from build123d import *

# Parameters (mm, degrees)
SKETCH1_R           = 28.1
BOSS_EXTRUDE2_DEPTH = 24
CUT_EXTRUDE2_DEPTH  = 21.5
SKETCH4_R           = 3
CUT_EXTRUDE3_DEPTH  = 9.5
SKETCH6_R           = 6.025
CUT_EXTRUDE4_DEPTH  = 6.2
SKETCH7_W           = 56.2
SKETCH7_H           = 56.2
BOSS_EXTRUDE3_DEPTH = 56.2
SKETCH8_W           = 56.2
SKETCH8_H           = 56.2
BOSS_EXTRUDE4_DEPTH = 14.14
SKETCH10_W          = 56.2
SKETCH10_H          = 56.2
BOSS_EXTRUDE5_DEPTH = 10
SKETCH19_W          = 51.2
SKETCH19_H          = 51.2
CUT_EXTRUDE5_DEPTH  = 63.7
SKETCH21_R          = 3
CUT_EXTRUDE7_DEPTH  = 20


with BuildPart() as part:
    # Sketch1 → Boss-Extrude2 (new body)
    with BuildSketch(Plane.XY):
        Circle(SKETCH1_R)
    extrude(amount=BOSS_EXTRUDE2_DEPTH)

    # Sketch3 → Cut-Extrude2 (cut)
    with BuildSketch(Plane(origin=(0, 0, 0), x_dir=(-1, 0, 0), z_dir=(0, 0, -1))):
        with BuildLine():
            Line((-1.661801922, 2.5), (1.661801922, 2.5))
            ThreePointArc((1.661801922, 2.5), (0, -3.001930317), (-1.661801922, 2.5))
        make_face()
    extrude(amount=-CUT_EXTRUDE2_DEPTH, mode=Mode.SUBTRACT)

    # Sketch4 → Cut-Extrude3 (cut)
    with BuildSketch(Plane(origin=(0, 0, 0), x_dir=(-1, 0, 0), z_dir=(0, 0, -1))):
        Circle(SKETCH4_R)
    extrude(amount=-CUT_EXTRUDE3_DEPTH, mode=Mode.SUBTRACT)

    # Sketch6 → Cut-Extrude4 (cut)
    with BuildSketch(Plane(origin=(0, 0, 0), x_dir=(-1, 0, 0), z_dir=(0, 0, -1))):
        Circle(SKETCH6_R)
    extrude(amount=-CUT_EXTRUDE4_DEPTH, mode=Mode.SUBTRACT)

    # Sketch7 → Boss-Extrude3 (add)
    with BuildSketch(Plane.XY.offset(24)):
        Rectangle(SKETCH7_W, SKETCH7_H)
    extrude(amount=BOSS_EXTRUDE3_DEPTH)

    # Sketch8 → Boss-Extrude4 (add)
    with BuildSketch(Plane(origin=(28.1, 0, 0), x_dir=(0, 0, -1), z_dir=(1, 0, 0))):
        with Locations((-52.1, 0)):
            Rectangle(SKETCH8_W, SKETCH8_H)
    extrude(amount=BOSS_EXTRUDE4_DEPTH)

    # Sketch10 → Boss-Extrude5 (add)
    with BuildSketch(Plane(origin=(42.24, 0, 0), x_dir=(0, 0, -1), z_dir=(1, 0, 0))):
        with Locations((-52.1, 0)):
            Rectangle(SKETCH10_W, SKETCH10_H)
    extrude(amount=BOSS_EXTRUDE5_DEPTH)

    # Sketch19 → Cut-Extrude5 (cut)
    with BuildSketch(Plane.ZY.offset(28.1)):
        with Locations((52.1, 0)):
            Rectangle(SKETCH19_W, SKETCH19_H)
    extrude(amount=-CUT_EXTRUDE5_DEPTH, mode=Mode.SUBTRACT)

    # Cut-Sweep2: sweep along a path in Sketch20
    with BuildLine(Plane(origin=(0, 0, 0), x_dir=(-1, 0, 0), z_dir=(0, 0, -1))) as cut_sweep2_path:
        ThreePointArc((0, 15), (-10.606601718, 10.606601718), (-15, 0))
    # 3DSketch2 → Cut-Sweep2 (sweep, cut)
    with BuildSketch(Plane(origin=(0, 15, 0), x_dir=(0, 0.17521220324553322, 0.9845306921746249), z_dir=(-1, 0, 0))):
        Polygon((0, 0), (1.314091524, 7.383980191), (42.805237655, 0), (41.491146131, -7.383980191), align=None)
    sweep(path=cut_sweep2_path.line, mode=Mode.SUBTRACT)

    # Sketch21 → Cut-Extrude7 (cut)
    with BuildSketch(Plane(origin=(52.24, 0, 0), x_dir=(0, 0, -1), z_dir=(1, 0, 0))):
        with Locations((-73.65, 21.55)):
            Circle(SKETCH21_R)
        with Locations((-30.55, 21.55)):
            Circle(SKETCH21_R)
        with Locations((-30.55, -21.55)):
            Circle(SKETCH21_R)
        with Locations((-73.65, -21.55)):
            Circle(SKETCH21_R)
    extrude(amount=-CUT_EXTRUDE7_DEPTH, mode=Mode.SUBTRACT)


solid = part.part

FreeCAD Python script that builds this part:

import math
import FreeCAD as App
import Part
import Sketcher
from FreeCAD import Vector

doc = App.newDocument("Part")
body = doc.addObject("PartDesign::Body", "Body")

sketch1 = doc.addObject("Sketcher::SketchObject", "Sketch")
body.addObject(sketch1)
sketch1.AttachmentSupport = (doc.XY_Plane, [""])
sketch1.MapMode = "FlatFace"
sketch1.addGeometry(Part.Circle(Vector(0, 0, 0), Vector(0, 0, 1), 28.1), False)
sketch1.addConstraint(Sketcher.Constraint("Coincident", 0, 3, -1, 1))
sketch1.addConstraint(Sketcher.Constraint("Diameter", 0, 56.2))
pad1 = doc.addObject("PartDesign::Pad", "Pad")
body.addObject(pad1)
pad1.Profile = sketch1
pad1.Length = 24

sketch2 = doc.addObject("Sketcher::SketchObject", "Sketch001")
body.addObject(sketch2)
sketch2.AttachmentSupport = (doc.XY_Plane, [""])
sketch2.MapMode = "FlatFace"
sketch2.addGeometry(Part.LineSegment(Vector(-1.661802, 2.5, 0), Vector(1.661802, 2.5, 0)), False)
sketch2.addGeometry(Part.ArcOfCircle(Part.Circle(Vector(0, 0, 0), Vector(0, 0, 1), 3.00193), math.radians(123.612812), math.radians(416.387188)), False)
sketch2.addConstraint(Sketcher.Constraint("Coincident", 0, 1, 1, 1))
sketch2.addConstraint(Sketcher.Constraint("Coincident", 1, 2, 0, 2))
sketch2.addConstraint(Sketcher.Constraint("Horizontal", 0))
sketch2.addConstraint(Sketcher.Constraint("Coincident", 1, 3, -1, 1))
sketch2.addConstraint(Sketcher.Constraint("DistanceY", -1, 1, 0, 1, 2.5))
sketch2.addConstraint(Sketcher.Constraint("Radius", 1, 3.00193))
pocket1 = doc.addObject("PartDesign::Pocket", "Pocket")
body.addObject(pocket1)
pocket1.Profile = sketch2
pocket1.Length = 21.5
pocket1.Reversed = True

sketch3 = doc.addObject("Sketcher::SketchObject", "Sketch002")
body.addObject(sketch3)
sketch3.AttachmentSupport = (doc.XY_Plane, [""])
sketch3.MapMode = "FlatFace"
sketch3.addGeometry(Part.Circle(Vector(0, 0, 0), Vector(0, 0, 1), 3), False)
sketch3.addConstraint(Sketcher.Constraint("Coincident", 0, 3, -1, 1))
sketch3.addConstraint(Sketcher.Constraint("Diameter", 0, 6.0))
pocket2 = doc.addObject("PartDesign::Pocket", "Pocket001")
body.addObject(pocket2)
pocket2.Profile = sketch3
pocket2.Length = 9.5
pocket2.Reversed = True

sketch4 = doc.addObject("Sketcher::SketchObject", "Sketch003")
body.addObject(sketch4)
sketch4.AttachmentSupport = (doc.XY_Plane, [""])
sketch4.MapMode = "FlatFace"
sketch4.addGeometry(Part.Circle(Vector(0, 0, 0), Vector(0, 0, 1), 6.025), False)
sketch4.addConstraint(Sketcher.Constraint("Coincident", 0, 3, -1, 1))
sketch4.addConstraint(Sketcher.Constraint("Diameter", 0, 12.05))
pocket3 = doc.addObject("PartDesign::Pocket", "Pocket002")
body.addObject(pocket3)
pocket3.Profile = sketch4
pocket3.Length = 6.2
pocket3.Reversed = True

sketch5 = doc.addObject("Sketcher::SketchObject", "Sketch004")
body.addObject(sketch5)
sketch5.AttachmentSupport = (doc.XY_Plane, [""])
sketch5.MapMode = "FlatFace"
sketch5.AttachmentOffset = App.Placement(Vector(0, 0, 24), App.Rotation())
sketch5.addGeometry(Part.LineSegment(Vector(-28.1, 28.1, 0), Vector(-28.1, -28.1, 0)), False)
sketch5.addGeometry(Part.LineSegment(Vector(-28.1, -28.1, 0), Vector(28.1, -28.1, 0)), False)
sketch5.addGeometry(Part.LineSegment(Vector(28.1, -28.1, 0), Vector(28.1, 28.1, 0)), False)
sketch5.addGeometry(Part.LineSegment(Vector(28.1, 28.1, 0), Vector(-28.1, 28.1, 0)), False)
sketch5.addConstraint(Sketcher.Constraint("Coincident", 0, 2, 1, 1))
sketch5.addConstraint(Sketcher.Constraint("Coincident", 1, 2, 2, 1))
sketch5.addConstraint(Sketcher.Constraint("Coincident", 2, 2, 3, 1))
sketch5.addConstraint(Sketcher.Constraint("Coincident", 3, 2, 0, 1))
sketch5.addConstraint(Sketcher.Constraint("Vertical", 0))
sketch5.addConstraint(Sketcher.Constraint("Horizontal", 1))
sketch5.addConstraint(Sketcher.Constraint("Vertical", 2))
sketch5.addConstraint(Sketcher.Constraint("Horizontal", 3))
sketch5.addConstraint(Sketcher.Constraint("Symmetric", 0, 2, 2, 2, -1, 1))
sketch5.addConstraint(Sketcher.Constraint("Equal", 3, 0))
sketch5.addConstraint(Sketcher.Constraint("DistanceX", 1, 1, 1, 2, 56.2))
pad2 = doc.addObject("PartDesign::Pad", "Pad001")
body.addObject(pad2)
pad2.Profile = sketch5
pad2.Length = 56.2

sketch6 = doc.addObject("Sketcher::SketchObject", "Sketch005")
body.addObject(sketch6)
sketch6.AttachmentSupport = (doc.YZ_Plane, [""])
sketch6.MapMode = "FlatFace"
sketch6.AttachmentOffset = App.Placement(Vector(0, 0, 28.1), App.Rotation())
sketch6.addGeometry(Part.LineSegment(Vector(28.1, 80.2, 0), Vector(-28.1, 80.2, 0)), False)
sketch6.addGeometry(Part.LineSegment(Vector(-28.1, 80.2, 0), Vector(-28.1, 24, 0)), False)
sketch6.addGeometry(Part.LineSegment(Vector(-28.1, 24, 0), Vector(28.1, 24, 0)), False)
sketch6.addGeometry(Part.LineSegment(Vector(28.1, 24, 0), Vector(28.1, 80.2, 0)), False)
sketch6.addConstraint(Sketcher.Constraint("Coincident", 0, 2, 1, 1))
sketch6.addConstraint(Sketcher.Constraint("Coincident", 1, 2, 2, 1))
sketch6.addConstraint(Sketcher.Constraint("Coincident", 2, 2, 3, 1))
sketch6.addConstraint(Sketcher.Constraint("Coincident", 3, 2, 0, 1))
sketch6.addConstraint(Sketcher.Constraint("Horizontal", 0))
sketch6.addConstraint(Sketcher.Constraint("Vertical", 1))
sketch6.addConstraint(Sketcher.Constraint("Horizontal", 2))
sketch6.addConstraint(Sketcher.Constraint("Vertical", 3))
sketch6.addConstraint(Sketcher.Constraint("Equal", 2, 1))
sketch6.addConstraint(Sketcher.Constraint("DistanceX", 0, 2, 0, 1, 56.2))
sketch6.addConstraint(Sketcher.Constraint("DistanceY", -1, 1, 1, 2, 24.0))
sketch6.addConstraint(Sketcher.Constraint("DistanceX", 0, 2, -1, 1, 28.1))
pad3 = doc.addObject("PartDesign::Pad", "Pad002")
body.addObject(pad3)
pad3.Profile = sketch6
pad3.Length = 14.14

sketch7 = doc.addObject("Sketcher::SketchObject", "Sketch006")
body.addObject(sketch7)
sketch7.AttachmentSupport = (doc.YZ_Plane, [""])
sketch7.MapMode = "FlatFace"
sketch7.AttachmentOffset = App.Placement(Vector(0, 0, 42.24), App.Rotation())
sketch7.addGeometry(Part.LineSegment(Vector(28.1, 80.2, 0), Vector(-28.1, 80.2, 0)), False)
sketch7.addGeometry(Part.LineSegment(Vector(-28.1, 80.2, 0), Vector(-28.1, 24, 0)), False)
sketch7.addGeometry(Part.LineSegment(Vector(-28.1, 24, 0), Vector(28.1, 24, 0)), False)
sketch7.addGeometry(Part.LineSegment(Vector(28.1, 24, 0), Vector(28.1, 80.2, 0)), False)
sketch7.addConstraint(Sketcher.Constraint("Coincident", 0, 2, 1, 1))
sketch7.addConstraint(Sketcher.Constraint("Coincident", 1, 2, 2, 1))
sketch7.addConstraint(Sketcher.Constraint("Coincident", 2, 2, 3, 1))
sketch7.addConstraint(Sketcher.Constraint("Coincident", 3, 2, 0, 1))
sketch7.addConstraint(Sketcher.Constraint("Horizontal", 0))
sketch7.addConstraint(Sketcher.Constraint("Vertical", 1))
sketch7.addConstraint(Sketcher.Constraint("Horizontal", 2))
sketch7.addConstraint(Sketcher.Constraint("Vertical", 3))
sketch7.addConstraint(Sketcher.Constraint("Equal", 2, 1))
sketch7.addConstraint(Sketcher.Constraint("DistanceX", 0, 2, 0, 1, 56.2))
sketch7.addConstraint(Sketcher.Constraint("DistanceY", -1, 1, 1, 2, 24.0))
sketch7.addConstraint(Sketcher.Constraint("DistanceX", 0, 2, -1, 1, 28.1))
pad4 = doc.addObject("PartDesign::Pad", "Pad003")
body.addObject(pad4)
pad4.Profile = sketch7
pad4.Length = 10

sketch8 = doc.addObject("Sketcher::SketchObject", "Sketch007")
body.addObject(sketch8)
sketch8.AttachmentSupport = (doc.YZ_Plane, [""])
sketch8.MapMode = "FlatFace"
sketch8.AttachmentOffset = App.Placement(Vector(0, 0, -28.1), App.Rotation())
sketch8.addGeometry(Part.LineSegment(Vector(25.6, 26.5, 0), Vector(-25.6, 26.5, 0)), False)
sketch8.addGeometry(Part.LineSegment(Vector(-25.6, 26.5, 0), Vector(-25.6, 77.7, 0)), False)
sketch8.addGeometry(Part.LineSegment(Vector(-25.6, 77.7, 0), Vector(25.6, 77.7, 0)), False)
sketch8.addGeometry(Part.LineSegment(Vector(25.6, 77.7, 0), Vector(25.6, 26.5, 0)), False)
sketch8.addConstraint(Sketcher.Constraint("Coincident", 0, 2, 1, 1))
sketch8.addConstraint(Sketcher.Constraint("Coincident", 1, 2, 2, 1))
sketch8.addConstraint(Sketcher.Constraint("Coincident", 2, 2, 3, 1))
sketch8.addConstraint(Sketcher.Constraint("Coincident", 3, 2, 0, 1))
sketch8.addConstraint(Sketcher.Constraint("Horizontal", 0))
sketch8.addConstraint(Sketcher.Constraint("Vertical", 1))
sketch8.addConstraint(Sketcher.Constraint("Horizontal", 2))
sketch8.addConstraint(Sketcher.Constraint("Vertical", 3))
sketch8.addConstraint(Sketcher.Constraint("Equal", 2, 1))
sketch8.addConstraint(Sketcher.Constraint("DistanceX", 0, 2, 0, 1, 51.2))
sketch8.addConstraint(Sketcher.Constraint("DistanceX", 0, 2, -1, 1, 25.6))
sketch8.addConstraint(Sketcher.Constraint("DistanceY", -1, 1, 0, 2, 26.5))
pocket4 = doc.addObject("PartDesign::Pocket", "Pocket003")
body.addObject(pocket4)
pocket4.Profile = sketch8
pocket4.Length = 63.7
pocket4.Reversed = True

sketch9 = doc.addObject("Sketcher::SketchObject", "Sketch008")
body.addObject(sketch9)
sketch9.AttachmentSupport = (doc.YZ_Plane, [""])
sketch9.MapMode = "FlatFace"
sketch9.addGeometry(Part.LineSegment(Vector(22.5, 0, 0), Vector(15, 0, 0)), False)
sketch9.addGeometry(Part.LineSegment(Vector(15, 0, 0), Vector(15, 42.14307, 0)), False)
sketch9.addGeometry(Part.LineSegment(Vector(15, 42.14307, 0), Vector(22.5, 42.14307, 0)), False)
sketch9.addGeometry(Part.LineSegment(Vector(22.5, 42.14307, 0), Vector(22.5, 0, 0)), False)
sketch9.addConstraint(Sketcher.Constraint("Coincident", 0, 2, 1, 1))
sketch9.addConstraint(Sketcher.Constraint("Coincident", 1, 2, 2, 1))
sketch9.addConstraint(Sketcher.Constraint("Coincident", 2, 2, 3, 1))
sketch9.addConstraint(Sketcher.Constraint("Coincident", 3, 2, 0, 1))
sketch9.addConstraint(Sketcher.Constraint("Horizontal", 0))
sketch9.addConstraint(Sketcher.Constraint("Vertical", 1))
sketch9.addConstraint(Sketcher.Constraint("Horizontal", 2))
sketch9.addConstraint(Sketcher.Constraint("Vertical", 3))
sketch9.addConstraint(Sketcher.Constraint("PointOnObject", 0, 2, -1))
sketch9.addConstraint(Sketcher.Constraint("DistanceX", 0, 2, 0, 1, 7.5))
sketch9.addConstraint(Sketcher.Constraint("DistanceX", -1, 1, 0, 2, 15.0))
sketch9.addConstraint(Sketcher.Constraint("DistanceY", 1, 1, 1, 2, 42.14307))

sketch10 = doc.addObject("Sketcher::SketchObject", "Sketch009")
body.addObject(sketch10)
sketch10.AttachmentSupport = (doc.XY_Plane, [""])
sketch10.MapMode = "FlatFace"
sketch10.addGeometry(Part.ArcOfCircle(Part.Circle(Vector(0, 0, 0), Vector(0, 0, 1), 15), math.radians(0), math.radians(90)), False)
sketch10.addConstraint(Sketcher.Constraint("Coincident", 0, 3, -1, 1))
sketch10.addConstraint(Sketcher.Constraint("PointOnObject", 0, 1, -1))
sketch10.addConstraint(Sketcher.Constraint("PointOnObject", 0, 2, -2))
sketch10.addConstraint(Sketcher.Constraint("Radius", 0, 15.0))
doc.recompute()

subtractivepipe = doc.addObject("PartDesign::SubtractivePipe", "SubtractivePipe")
body.addObject(subtractivepipe)
subtractivepipe.Profile = sketch9
subtractivepipe.Spine = (sketch10, ["Edge1"])

sketch11 = doc.addObject("Sketcher::SketchObject", "Sketch010")
body.addObject(sketch11)
sketch11.AttachmentSupport = (doc.YZ_Plane, [""])
sketch11.MapMode = "FlatFace"
sketch11.AttachmentOffset = App.Placement(Vector(0, 0, 52.24), App.Rotation())
sketch11.addGeometry(Part.Circle(Vector(21.55, 73.65, 0), Vector(0, 0, 1), 3), False)
sketch11.addGeometry(Part.Circle(Vector(21.55, 30.55, 0), Vector(0, 0, 1), 3), False)
sketch11.addGeometry(Part.Circle(Vector(-21.55, 30.55, 0), Vector(0, 0, 1), 3), False)
sketch11.addGeometry(Part.Circle(Vector(-21.55, 73.65, 0), Vector(0, 0, 1), 3), False)
sketch11.addConstraint(Sketcher.Constraint("Equal", 0, 1))
sketch11.addConstraint(Sketcher.Constraint("Equal", 1, 2))
sketch11.addConstraint(Sketcher.Constraint("Equal", 2, 3))
sketch11.addConstraint(Sketcher.Constraint("Symmetric", 1, 3, 2, 3, -2))
sketch11.addConstraint(Sketcher.Constraint("Symmetric", 0, 3, 3, 3, -2))
sketch11.addConstraint(Sketcher.Constraint("Vertical", 0, 3, 1, 3))
sketch11.addConstraint(Sketcher.Constraint("Diameter", 0, 6.0))
sketch11.addConstraint(Sketcher.Constraint("DistanceY", 1, 3, 0, 3, 43.1))
sketch11.addConstraint(Sketcher.Constraint("DistanceX", 2, 3, 1, 3, 43.1))
sketch11.addConstraint(Sketcher.Constraint("DistanceY", -1, 1, 0, 3, 73.65))
pocket5 = doc.addObject("PartDesign::Pocket", "Pocket004")
body.addObject(pocket5)
pocket5.Profile = sketch11
pocket5.Length = 20

doc.recompute()
